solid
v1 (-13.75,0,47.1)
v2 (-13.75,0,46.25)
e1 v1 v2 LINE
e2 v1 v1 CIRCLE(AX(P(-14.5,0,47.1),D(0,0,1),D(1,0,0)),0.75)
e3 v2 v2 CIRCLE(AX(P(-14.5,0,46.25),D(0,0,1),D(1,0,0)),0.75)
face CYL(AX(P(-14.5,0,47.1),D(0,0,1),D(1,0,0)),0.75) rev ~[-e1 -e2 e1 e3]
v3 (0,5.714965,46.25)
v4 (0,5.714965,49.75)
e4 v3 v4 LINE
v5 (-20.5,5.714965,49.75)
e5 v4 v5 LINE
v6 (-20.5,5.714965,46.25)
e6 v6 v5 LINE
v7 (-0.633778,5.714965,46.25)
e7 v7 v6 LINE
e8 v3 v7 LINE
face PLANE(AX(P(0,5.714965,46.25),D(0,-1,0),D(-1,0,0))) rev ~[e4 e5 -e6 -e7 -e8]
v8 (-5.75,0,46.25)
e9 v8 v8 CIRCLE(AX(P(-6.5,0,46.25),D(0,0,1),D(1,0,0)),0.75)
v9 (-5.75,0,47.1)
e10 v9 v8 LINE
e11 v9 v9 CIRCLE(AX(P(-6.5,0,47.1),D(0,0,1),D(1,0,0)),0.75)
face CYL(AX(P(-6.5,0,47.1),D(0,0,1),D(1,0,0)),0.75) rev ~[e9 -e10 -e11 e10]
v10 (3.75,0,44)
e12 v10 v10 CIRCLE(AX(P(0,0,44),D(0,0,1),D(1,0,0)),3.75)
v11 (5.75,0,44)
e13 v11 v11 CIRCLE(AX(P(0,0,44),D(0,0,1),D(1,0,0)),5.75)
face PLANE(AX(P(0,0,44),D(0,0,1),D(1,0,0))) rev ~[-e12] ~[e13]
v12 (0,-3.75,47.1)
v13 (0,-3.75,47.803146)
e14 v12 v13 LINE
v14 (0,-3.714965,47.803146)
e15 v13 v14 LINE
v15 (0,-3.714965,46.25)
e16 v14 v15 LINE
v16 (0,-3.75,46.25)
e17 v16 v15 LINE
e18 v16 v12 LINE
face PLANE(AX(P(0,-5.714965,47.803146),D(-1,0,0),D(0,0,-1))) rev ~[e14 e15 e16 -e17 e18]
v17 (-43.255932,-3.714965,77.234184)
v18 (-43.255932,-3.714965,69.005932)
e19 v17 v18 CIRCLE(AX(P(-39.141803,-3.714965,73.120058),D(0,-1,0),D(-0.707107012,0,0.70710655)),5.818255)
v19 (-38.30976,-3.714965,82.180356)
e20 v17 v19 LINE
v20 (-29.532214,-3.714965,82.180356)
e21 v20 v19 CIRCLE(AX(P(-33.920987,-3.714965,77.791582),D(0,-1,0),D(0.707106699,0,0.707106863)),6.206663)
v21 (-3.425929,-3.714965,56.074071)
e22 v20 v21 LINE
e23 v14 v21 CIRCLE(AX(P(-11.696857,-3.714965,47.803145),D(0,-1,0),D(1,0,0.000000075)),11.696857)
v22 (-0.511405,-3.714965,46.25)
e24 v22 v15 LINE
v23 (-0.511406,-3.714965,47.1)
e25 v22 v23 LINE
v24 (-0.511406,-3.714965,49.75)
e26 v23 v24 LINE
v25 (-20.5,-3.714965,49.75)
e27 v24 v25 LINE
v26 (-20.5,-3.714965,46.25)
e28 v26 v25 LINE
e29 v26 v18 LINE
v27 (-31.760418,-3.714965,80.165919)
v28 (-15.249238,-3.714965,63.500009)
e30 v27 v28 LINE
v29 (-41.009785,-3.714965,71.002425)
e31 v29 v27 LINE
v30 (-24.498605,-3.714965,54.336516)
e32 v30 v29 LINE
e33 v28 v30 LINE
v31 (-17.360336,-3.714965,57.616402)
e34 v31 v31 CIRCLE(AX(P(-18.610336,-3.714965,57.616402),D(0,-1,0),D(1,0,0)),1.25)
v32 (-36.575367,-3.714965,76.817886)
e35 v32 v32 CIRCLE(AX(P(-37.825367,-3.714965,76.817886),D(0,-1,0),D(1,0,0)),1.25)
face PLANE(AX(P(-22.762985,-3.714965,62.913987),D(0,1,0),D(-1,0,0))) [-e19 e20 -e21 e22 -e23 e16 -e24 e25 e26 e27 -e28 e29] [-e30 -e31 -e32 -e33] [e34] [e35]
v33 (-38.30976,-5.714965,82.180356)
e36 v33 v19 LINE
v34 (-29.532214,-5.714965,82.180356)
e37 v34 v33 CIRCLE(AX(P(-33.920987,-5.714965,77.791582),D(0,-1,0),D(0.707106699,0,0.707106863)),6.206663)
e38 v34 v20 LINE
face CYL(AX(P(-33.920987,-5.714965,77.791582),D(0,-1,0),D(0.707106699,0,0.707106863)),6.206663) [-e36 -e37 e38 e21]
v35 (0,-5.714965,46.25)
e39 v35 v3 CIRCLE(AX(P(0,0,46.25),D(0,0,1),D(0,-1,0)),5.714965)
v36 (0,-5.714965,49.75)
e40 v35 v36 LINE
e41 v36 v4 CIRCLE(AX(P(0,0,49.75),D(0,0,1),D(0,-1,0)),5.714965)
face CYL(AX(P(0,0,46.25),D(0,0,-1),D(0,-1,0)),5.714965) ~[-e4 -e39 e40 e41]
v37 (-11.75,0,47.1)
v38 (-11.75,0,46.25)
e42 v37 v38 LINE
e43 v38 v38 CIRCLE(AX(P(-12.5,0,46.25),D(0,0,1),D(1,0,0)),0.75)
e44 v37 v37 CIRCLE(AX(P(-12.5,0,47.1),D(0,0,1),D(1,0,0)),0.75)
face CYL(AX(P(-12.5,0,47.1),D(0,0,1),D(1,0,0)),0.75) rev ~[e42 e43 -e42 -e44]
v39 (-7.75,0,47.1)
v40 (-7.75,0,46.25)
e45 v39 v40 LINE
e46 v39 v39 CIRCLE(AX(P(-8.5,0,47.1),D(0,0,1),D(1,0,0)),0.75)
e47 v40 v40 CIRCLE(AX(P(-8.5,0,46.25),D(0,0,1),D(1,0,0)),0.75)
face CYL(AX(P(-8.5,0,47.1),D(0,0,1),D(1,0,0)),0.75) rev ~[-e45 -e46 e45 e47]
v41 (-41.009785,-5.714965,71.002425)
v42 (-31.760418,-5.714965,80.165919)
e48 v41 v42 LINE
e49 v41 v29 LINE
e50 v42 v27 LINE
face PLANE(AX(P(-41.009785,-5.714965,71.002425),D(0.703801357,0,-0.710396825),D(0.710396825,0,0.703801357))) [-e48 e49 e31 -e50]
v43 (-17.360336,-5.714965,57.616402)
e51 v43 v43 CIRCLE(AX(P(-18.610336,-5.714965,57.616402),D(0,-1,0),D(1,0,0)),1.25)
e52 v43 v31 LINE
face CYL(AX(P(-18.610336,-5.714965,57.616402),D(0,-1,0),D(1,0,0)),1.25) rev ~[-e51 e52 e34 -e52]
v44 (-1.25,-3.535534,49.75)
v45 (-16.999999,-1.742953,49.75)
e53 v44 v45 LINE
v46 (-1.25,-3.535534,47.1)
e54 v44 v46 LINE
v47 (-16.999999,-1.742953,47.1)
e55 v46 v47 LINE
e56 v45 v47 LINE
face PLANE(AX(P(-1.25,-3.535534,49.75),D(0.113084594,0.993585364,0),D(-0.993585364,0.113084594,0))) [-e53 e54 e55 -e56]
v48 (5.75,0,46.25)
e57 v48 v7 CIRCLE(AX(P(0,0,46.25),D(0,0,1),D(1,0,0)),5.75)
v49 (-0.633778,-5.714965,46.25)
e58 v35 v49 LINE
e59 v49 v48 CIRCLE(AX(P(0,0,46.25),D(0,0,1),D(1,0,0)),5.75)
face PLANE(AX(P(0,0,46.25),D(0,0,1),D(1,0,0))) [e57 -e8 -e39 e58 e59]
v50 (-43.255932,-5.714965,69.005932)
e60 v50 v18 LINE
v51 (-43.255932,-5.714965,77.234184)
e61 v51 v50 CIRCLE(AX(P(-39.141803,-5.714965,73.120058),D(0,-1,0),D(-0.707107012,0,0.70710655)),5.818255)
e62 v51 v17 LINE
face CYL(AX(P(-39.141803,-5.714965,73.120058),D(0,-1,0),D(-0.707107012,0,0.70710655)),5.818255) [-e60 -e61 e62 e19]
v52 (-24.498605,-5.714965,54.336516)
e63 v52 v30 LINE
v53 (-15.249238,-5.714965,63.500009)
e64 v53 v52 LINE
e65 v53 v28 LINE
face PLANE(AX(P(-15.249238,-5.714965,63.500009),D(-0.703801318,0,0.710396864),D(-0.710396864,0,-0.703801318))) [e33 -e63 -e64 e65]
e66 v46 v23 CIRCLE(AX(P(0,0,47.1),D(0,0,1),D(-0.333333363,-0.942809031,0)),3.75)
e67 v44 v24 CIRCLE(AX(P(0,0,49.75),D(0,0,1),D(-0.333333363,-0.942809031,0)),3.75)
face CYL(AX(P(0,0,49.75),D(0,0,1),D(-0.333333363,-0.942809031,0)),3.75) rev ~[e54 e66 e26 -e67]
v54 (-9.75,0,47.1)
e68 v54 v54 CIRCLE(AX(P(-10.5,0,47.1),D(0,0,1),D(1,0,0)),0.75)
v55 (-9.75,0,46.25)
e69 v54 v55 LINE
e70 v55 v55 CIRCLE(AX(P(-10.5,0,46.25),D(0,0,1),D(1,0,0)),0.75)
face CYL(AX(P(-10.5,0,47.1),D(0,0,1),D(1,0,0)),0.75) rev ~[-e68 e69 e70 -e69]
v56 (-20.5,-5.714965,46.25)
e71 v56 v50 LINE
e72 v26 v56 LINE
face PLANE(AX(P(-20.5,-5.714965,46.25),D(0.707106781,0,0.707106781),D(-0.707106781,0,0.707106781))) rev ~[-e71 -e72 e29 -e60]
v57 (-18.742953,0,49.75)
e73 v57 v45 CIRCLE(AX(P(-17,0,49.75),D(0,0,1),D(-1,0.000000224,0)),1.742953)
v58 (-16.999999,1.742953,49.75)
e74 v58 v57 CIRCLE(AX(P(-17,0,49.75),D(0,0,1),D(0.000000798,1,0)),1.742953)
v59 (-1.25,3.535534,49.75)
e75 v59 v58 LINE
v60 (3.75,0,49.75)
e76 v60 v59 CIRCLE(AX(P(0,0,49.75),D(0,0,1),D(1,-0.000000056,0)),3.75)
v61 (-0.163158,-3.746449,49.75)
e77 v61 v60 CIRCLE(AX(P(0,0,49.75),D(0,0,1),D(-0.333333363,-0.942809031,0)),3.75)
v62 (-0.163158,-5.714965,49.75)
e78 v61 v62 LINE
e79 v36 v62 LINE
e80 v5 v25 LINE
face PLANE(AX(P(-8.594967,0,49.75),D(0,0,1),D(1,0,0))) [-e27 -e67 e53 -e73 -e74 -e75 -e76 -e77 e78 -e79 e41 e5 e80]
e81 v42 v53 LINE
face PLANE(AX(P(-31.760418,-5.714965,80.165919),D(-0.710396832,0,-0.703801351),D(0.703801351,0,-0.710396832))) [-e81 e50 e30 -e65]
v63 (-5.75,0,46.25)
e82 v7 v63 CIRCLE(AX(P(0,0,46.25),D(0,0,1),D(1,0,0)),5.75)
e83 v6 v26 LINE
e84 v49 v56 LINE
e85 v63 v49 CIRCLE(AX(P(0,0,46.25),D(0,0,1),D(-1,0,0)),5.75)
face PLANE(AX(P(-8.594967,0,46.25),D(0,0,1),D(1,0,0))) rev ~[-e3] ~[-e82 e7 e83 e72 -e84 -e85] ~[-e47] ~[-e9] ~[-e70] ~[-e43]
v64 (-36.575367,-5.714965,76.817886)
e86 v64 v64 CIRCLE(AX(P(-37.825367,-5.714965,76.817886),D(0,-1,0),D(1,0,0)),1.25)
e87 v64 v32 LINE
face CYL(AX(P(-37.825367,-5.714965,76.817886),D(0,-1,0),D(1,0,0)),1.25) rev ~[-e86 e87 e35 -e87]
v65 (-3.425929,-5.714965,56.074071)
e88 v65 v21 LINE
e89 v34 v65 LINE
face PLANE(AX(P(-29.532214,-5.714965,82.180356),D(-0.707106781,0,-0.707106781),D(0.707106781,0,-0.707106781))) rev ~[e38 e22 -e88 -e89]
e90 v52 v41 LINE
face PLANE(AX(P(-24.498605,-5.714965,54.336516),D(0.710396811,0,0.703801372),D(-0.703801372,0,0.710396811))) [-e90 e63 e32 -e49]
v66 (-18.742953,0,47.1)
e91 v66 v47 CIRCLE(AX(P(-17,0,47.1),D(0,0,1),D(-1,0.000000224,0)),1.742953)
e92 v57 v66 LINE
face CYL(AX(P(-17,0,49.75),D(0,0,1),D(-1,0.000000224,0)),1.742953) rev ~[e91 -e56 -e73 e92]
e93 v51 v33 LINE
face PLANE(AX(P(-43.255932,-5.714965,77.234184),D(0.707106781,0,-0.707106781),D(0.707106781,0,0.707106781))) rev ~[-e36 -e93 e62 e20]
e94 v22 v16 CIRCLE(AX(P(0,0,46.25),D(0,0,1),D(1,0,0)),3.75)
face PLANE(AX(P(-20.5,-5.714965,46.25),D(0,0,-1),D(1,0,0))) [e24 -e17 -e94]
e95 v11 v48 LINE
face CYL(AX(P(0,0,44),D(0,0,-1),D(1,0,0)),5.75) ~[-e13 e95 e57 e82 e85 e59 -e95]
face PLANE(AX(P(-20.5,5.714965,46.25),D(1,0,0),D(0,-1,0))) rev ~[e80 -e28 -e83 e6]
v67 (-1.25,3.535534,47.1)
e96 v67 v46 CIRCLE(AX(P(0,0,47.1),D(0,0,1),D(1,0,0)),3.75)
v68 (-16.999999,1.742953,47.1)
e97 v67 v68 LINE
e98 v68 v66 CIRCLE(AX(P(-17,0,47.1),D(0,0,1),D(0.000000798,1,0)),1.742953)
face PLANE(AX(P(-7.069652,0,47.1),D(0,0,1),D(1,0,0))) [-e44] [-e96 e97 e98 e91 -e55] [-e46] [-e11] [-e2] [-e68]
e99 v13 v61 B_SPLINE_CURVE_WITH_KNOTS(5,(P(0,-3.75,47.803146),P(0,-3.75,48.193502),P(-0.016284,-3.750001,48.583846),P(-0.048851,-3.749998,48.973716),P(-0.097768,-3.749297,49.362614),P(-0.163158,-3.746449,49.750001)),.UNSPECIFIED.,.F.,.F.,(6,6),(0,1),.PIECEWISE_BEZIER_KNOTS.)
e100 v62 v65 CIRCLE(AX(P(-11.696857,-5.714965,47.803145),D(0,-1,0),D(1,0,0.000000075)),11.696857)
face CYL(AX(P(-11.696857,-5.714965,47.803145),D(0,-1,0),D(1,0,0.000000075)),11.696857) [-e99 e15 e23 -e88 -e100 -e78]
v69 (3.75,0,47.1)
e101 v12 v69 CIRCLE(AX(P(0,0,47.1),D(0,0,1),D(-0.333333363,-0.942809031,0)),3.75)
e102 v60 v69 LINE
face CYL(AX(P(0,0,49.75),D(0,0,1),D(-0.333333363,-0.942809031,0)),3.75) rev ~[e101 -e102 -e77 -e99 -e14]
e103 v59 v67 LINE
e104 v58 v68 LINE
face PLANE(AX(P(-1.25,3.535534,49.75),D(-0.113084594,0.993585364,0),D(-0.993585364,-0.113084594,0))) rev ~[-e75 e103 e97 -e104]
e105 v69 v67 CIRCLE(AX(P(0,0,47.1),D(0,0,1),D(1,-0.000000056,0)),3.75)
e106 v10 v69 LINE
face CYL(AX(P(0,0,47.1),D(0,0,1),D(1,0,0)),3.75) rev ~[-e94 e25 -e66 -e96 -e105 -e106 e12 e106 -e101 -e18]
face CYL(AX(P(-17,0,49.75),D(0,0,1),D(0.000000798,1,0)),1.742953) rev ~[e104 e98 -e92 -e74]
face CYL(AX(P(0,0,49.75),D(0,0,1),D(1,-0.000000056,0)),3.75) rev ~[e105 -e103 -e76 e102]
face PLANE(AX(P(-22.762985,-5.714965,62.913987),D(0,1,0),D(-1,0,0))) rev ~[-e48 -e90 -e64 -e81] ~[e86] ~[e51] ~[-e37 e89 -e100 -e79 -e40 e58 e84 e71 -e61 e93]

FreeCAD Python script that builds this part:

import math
import FreeCAD as App
import Part
import Sketcher

V = App.Vector
Q = App.Units.Quantity


def add_polygon(sketch, points):
    """Adds a closed chain of lines whose ends are joined by coincident constraints."""
    first, n = sketch.GeometryCount, len(points)
    for a, b in zip(points, points[1:] + points[:1]):
        sketch.addGeometry(Part.LineSegment(App.Vector(*a, 0), App.Vector(*b, 0)), False)
    for i in range(n):
        sketch.addConstraint(Sketcher.Constraint("Coincident", first + i, 2, first + (i + 1) % n, 1))

doc = App.newDocument("Part")
params = doc.addObject("Spreadsheet::Sheet", "Params")
for row, (alias, value) in enumerate([
    ("sketch1_diameter", "11.5 mm"),
    ("sketch1_diameter2", "7.5 mm"),
    ("pad1_length", "2.25 mm"),
    ("sketch2_width", "20.5 mm"),
    ("pad2_length", "3.5 mm"),
    ("sketch3_radius", "3.75 mm"),
    ("pocket1_length", "2.65 mm"),
    ("sketch4_diameter", "7.5 mm"),
    ("sketch4_diameter2", "1.5 mm"),
    ("pocket2_length", "5 mm"),
    ("sketch5_diameter", "2.5 mm"),
    ("sketch5_width", "20.5 mm"),
    ("sketch5_length", "13.02 mm"),
    ("sketch5_length2", "23.46 mm"),
    ("pad3_length", "2 mm"),
], start=1):
    params.set(f"A{row}", alias)
    params.set(f"B{row}", "=" + value)
    params.setAlias(f"B{row}", alias)

body = doc.addObject("PartDesign::Body", "Body")

sketch1 = doc.addObject("Sketcher::SketchObject", "Sketch")
body.addObject(sketch1)
sketch1.AttachmentSupport = (doc.XY_Plane, [""])
sketch1.MapMode = "FlatFace"
sketch1.addGeometry(Part.Circle(V(0, 0, 0), V(0, 0, 1), 5.8), False)
sketch1.addGeometry(Part.Circle(V(0, 0, 0), V(0, 0, 1), 3.8), False)
sketch1.addConstraint(Sketcher.Constraint("Coincident", 0, 3, -1, 1))
sketch1.addConstraint(Sketcher.Constraint("Coincident", 1, 3, -1, 1))
sketch1.addConstraint(Sketcher.Constraint("Diameter", 0, Q("11.5 mm")))
sketch1.addConstraint(Sketcher.Constraint("Diameter", 1, Q("7.5 mm")))
sketch1.setExpression("Constraints[2]", "Params.sketch1_diameter")
sketch1.setExpression("Constraints[3]", "Params.sketch1_diameter2")
pad1 = doc.addObject("PartDesign::Pad", "Pad")
body.addObject(pad1)
pad1.Profile = sketch1
pad1.setExpression("Length", "Params.pad1_length")

sketch2 = doc.addObject("Sketcher::SketchObject", "Sketch001")
body.addObject(sketch2)
sketch2.AttachmentSupport = (doc.XY_Plane, [""])
sketch2.MapMode = "FlatFace"
sketch2.AttachmentOffset = App.Placement(V(0, 0, 2.25), App.Rotation())
sketch2.addGeometry(Part.LineSegment(V(0, 6, 0), V(-20, 6, 0)), False)
sketch2.addGeometry(Part.LineSegment(V(-20, 6, 0), V(-20, -6, 0)), False)
sketch2.addGeometry(Part.LineSegment(V(-20, -6, 0), V(0, -6, 0)), False)
sketch2.addGeometry(Part.ArcOfCircle(Part.Circle(V(0, 0, 0), V(0, 0, 1), 6), math.radians(-90), math.radians(90)), False)
sketch2.addConstraint(Sketcher.Constraint("Coincident", 0, 2, 1, 1))
sketch2.addConstraint(Sketcher.Constraint("Coincident", 1, 2, 2, 1))
sketch2.addConstraint(Sketcher.Constraint("Tangent", 2, 2, 3, 1))
sketch2.addConstraint(Sketcher.Constraint("Tangent", 3, 2, 0, 1))
sketch2.addConstraint(Sketcher.Constraint("Horizontal", 0))
sketch2.addConstraint(Sketcher.Constraint("Vertical", 1))
sketch2.addConstraint(Sketcher.Constraint("Horizontal", 2))
sketch2.addConstraint(Sketcher.Constraint("Coincident", 3, 3, -1, 1))
sketch2.addConstraint(Sketcher.Constraint("DistanceX", 0, 2, 0, 1, Q("20.5 mm")))
sketch2.addConstraint(Sketcher.Constraint("Radius", 3, Q("5.714965 mm")))
sketch2.setExpression("Constraints[8]", "Params.sketch2_width")
pad2 = doc.addObject("PartDesign::Pad", "Pad001")
body.addObject(pad2)
pad2.Profile = sketch2
pad2.setExpression("Length", "Params.pad2_length")

sketch3 = doc.addObject("Sketcher::SketchObject", "Sketch002")
body.addObject(sketch3)
sketch3.AttachmentSupport = (doc.XY_Plane, [""])
sketch3.MapMode = "FlatFace"
sketch3.AttachmentOffset = App.Placement(V(0, 0, 5.75), App.Rotation())
sketch3.addGeometry(Part.LineSegment(V(-1.2, 3.5, 0), V(-17, 1.7, 0)), False)
sketch3.addGeometry(Part.ArcOfCircle(Part.Circle(V(-17, 0, 0), V(0, 0, 1), 1.7), math.radians(90), math.radians(180)), False)
sketch3.addGeometry(Part.ArcOfCircle(Part.Circle(V(-17, 0, 0), V(0, 0, 1), 1.7), math.radians(180), math.radians(270)), False)
sketch3.addGeometry(Part.LineSegment(V(-17, -1.7, 0), V(-1.2, -3.5, 0)), False)
sketch3.addGeometry(Part.ArcOfCircle(Part.Circle(V(0, 0, 0), V(0, 0, 1), 3.7), math.radians(-109), math.radians(0)), False)
sketch3.addGeometry(Part.ArcOfCircle(Part.Circle(V(0, 0, 0), V(0, 0, 1), 3.7), math.radians(0), math.radians(109)), False)
sketch3.addConstraint(Sketcher.Constraint("Coincident", 0, 2, 1, 1))
sketch3.addConstraint(Sketcher.Constraint("Tangent", 1, 2, 2, 1))
sketch3.addConstraint(Sketcher.Constraint("Coincident", 2, 2, 3, 1))
sketch3.addConstraint(Sketcher.Constraint("Coincident", 3, 2, 4, 1))
sketch3.addConstraint(Sketcher.Constraint("Tangent", 4, 2, 5, 1))
sketch3.addConstraint(Sketcher.Constraint("Coincident", 5, 2, 0, 1))
sketch3.addConstraint(Sketcher.Constraint("Coincident", 4, 3, -1, 1))
sketch3.addConstraint(Sketcher.Constraint("Equal", 1, 2))
sketch3.addConstraint(Sketcher.Constraint("Equal", 4, 5))
sketch3.addConstraint(Sketcher.Constraint("Symmetric", 0, 2, 2, 2, -1))
sketch3.addConstraint(Sketcher.Constraint("PointOnObject", 1, 2, -1))
sketch3.addConstraint(Sketcher.Constraint("PointOnObject", 4, 2, -1))
sketch3.addConstraint(Sketcher.Constraint("Vertical", 2, 3, 0, 2))
sketch3.addConstraint(Sketcher.Constraint("Vertical", 3, 2, 5, 2))
sketch3.addConstraint(Sketcher.Constraint("Radius", 4, Q("3.75 mm")))
sketch3.addConstraint(Sketcher.Constraint("DistanceX", 1, 3, -1, 1, Q("17 mm")))
sketch3.addConstraint(Sketcher.Constraint("DistanceX", 3, 2, 4, 2, Q("5 mm")))
sketch3.addConstraint(Sketcher.Constraint("Radius", 1, Q("1.742953 mm")))
sketch3.setExpression("Constraints[14]", "Params.sketch3_radius")
pocket1 = doc.addObject("PartDesign::Pocket", "Pocket")
body.addObject(pocket1)
pocket1.Profile = sketch3
pocket1.setExpression("Length", "Params.pocket1_length")

sketch4 = doc.addObject("Sketcher::SketchObject", "Sketch003")
body.addObject(sketch4)
sketch4.AttachmentSupport = (doc.XY_Plane, [""])
sketch4.MapMode = "FlatFace"
sketch4.AttachmentOffset = App.Placement(V(0, 0, 3.1), App.Rotation())
sketch4.addGeometry(Part.Circle(V(0, 0, 0), V(0, 0, 1), 3.8), False)
sketch4.addGeometry(Part.Circle(V(-14.5, 0, 0), V(0, 0, 1), 0.8), False)
sketch4.addGeometry(Part.Circle(V(-12.5, 0, 0), V(0, 0, 1), 0.8), False)
sketch4.addGeometry(Part.Circle(V(-10.5, 0, 0), V(0, 0, 1), 0.8), False)
sketch4.addGeometry(Part.Circle(V(-8.5, 0, 0), V(0, 0, 1), 0.8), False)
sketch4.addGeometry(Part.Circle(V(-6.5, 0, 0), V(0, 0, 1), 0.8), False)
sketch4.addConstraint(Sketcher.Constraint("Coincident", 0, 3, -1, 1))
sketch4.addConstraint(Sketcher.Constraint("Equal", 1, 2))
sketch4.addConstraint(Sketcher.Constraint("Equal", 2, 3))
sketch4.addConstraint(Sketcher.Constraint("Equal", 3, 4))
sketch4.addConstraint(Sketcher.Constraint("Equal", 4, 5))
sketch4.addConstraint(Sketcher.Constraint("PointOnObject", 1, 3, -1))
sketch4.addConstraint(Sketcher.Constraint("PointOnObject", 2, 3, -1))
sketch4.addConstraint(Sketcher.Constraint("PointOnObject", 3, 3, -1))
sketch4.addConstraint(Sketcher.Constraint("PointOnObject", 4, 3, -1))
sketch4.addConstraint(Sketcher.Constraint("PointOnObject", 5, 3, -1))
sketch4.addConstraint(Sketcher.Constraint("Diameter", 0, Q("7.5 mm")))
sketch4.addConstraint(Sketcher.Constraint("Diameter", 1, Q("1.5 mm")))
sketch4.addConstraint(Sketcher.Constraint("DistanceX", 1, 3, 2, 3, Q("2 mm")))
sketch4.addConstraint(Sketcher.Constraint("DistanceX", 2, 3, 3, 3, Q("2 mm")))
sketch4.addConstraint(Sketcher.Constraint("DistanceX", 3, 3, 4, 3, Q("2 mm")))
sketch4.addConstraint(Sketcher.Constraint("DistanceX", 4, 3, 5, 3, Q("2 mm")))
sketch4.addConstraint(Sketcher.Constraint("DistanceX", 1, 3, -1, 1, Q("14.5 mm")))
sketch4.setExpression("Constraints[10]", "Params.sketch4_diameter")
sketch4.setExpression("Constraints[11]", "Params.sketch4_diameter2")
pocket2 = doc.addObject("PartDesign::Pocket", "Pocket001")
body.addObject(pocket2)
pocket2.Profile = sketch4
pocket2.setExpression("Length", "Params.pocket2_length")

sketch5 = doc.addObject("Sketcher::SketchObject", "Sketch004")
body.addObject(sketch5)
sketch5.AttachmentSupport = (doc.XZ_Plane, [""])
sketch5.MapMode = "FlatFace"
sketch5.AttachmentOffset = App.Placement(V(0, 0, 5.714965), App.Rotation())
sketch5.addGeometry(Part.LineSegment(V(-43.3, 25, 0), V(-20.5, 2.2, 0)), False)
sketch5.addGeometry(Part.LineSegment(V(-20.5, 2.2, 0), V(0, 2.2, 0)), False)
sketch5.addGeometry(Part.LineSegment(V(0, 2.2, 0), V(0, 3.8, 0)), False)
sketch5.addGeometry(Part.ArcOfCircle(Part.Circle(V(-11.7, 3.8, 0), V(0, 0, 1), 11.7), math.radians(0), math.radians(45)), False)
sketch5.addGeometry(Part.LineSegment(V(-3.4, 12.1, 0), V(-29.5, 38.2, 0)), False)
sketch5.addGeometry(Part.ArcOfCircle(Part.Circle(V(-33.9, 33.8, 0), V(0, 0, 1), 6.2), math.radians(45), math.radians(135)), False)
sketch5.addGeometry(Part.LineSegment(V(-38.3, 38.2, 0), V(-43.3, 33.2, 0)), False)
sketch5.addGeometry(Part.ArcOfCircle(Part.Circle(V(-39.1, 29.1, 0), V(0, 0, 1), 5.8), math.radians(135), math.radians(225)), False)
sketch5.addGeometry(Part.Circle(V(-18.6, 13.6, 0), V(0, 0, 1), 1.2), False)
add_polygon(sketch5, [(-41, 27), (-31.8, 36.2), (-15.2, 19.5), (-24.5, 10.3)])
sketch5.addGeometry(Part.Circle(V(-37.8, 32.8, 0), V(0, 0, 1), 1.2), False)
sketch5.addConstraint(Sketcher.Constraint("Coincident", 0, 2, 1, 1))
sketch5.addConstraint(Sketcher.Constraint("Coincident", 1, 2, 2, 1))
sketch5.addConstraint(Sketcher.Constraint("Tangent", 2, 2, 3, 1))
sketch5.addConstraint(Sketcher.Constraint("Tangent", 3, 2, 4, 1))
sketch5.addConstraint(Sketcher.Constraint("Tangent", 4, 2, 5, 1))
sketch5.addConstraint(Sketcher.Constraint("Tangent", 5, 2, 6, 1))
sketch5.addConstraint(Sketcher.Constraint("Tangent", 6, 2, 7, 1))
sketch5.addConstraint(Sketcher.Constraint("Tangent", 7, 2, 0, 1))
sketch5.addConstraint(Sketcher.Constraint("Horizontal", 1))
sketch5.addConstraint(Sketcher.Constraint("Vertical", 2))
sketch5.addConstraint(Sketcher.Constraint("Equal", 8, 13))
sketch5.addConstraint(Sketcher.Constraint("PointOnObject", 1, 2, -2))
sketch5.addConstraint(Sketcher.Constraint("Parallel", 0, 4))
sketch5.addConstraint(Sketcher.Constraint("Perpendicular", 4, 6))
sketch5.addConstraint(Sketcher.Constraint("Perpendicular", 9, 10))
sketch5.addConstraint(Sketcher.Constraint("Perpendicular", 10, 11))
sketch5.addConstraint(Sketcher.Constraint("Perpendicular", 11, 12))
sketch5.addConstraint(Sketcher.Constraint("Horizontal", 4, 2, 5, 2))
sketch5.addConstraint(Sketcher.Constraint("Diameter", 8, Q("2.5 mm")))
sketch5.addConstraint(Sketcher.Constraint("DistanceX", 1, 1, 1, 2, Q("20.5 mm")))
sketch5.addConstraint(Sketcher.Constraint("Distance", 9, Q("13.02 mm")))
sketch5.addConstraint(Sketcher.Constraint("Distance", 10, Q("23.46 mm")))
sketch5.addConstraint(Sketcher.Constraint("DistanceY", -1, 1, 0, 2, Q("2.25 mm")))
sketch5.addConstraint(Sketcher.Constraint("Radius", 3, Q("11.696857 mm")))
sketch5.addConstraint(Sketcher.Constraint("Radius", 5, Q("6.206663 mm")))
sketch5.addConstraint(Sketcher.Constraint("Radius", 7, Q("5.818255 mm")))
sketch5.addConstraint(Sketcher.Constraint("DistanceY", 7, 3, 4, 2, Q("9.060298 mm")))
sketch5.addConstraint(Sketcher.Constraint("DistanceX", 8, 3, 10, 2, Q("3.361098 mm")))
sketch5.addConstraint(Sketcher.Constraint("DistanceX", 12, 2, 5, 3, Q("7.088798 mm")))
sketch5.addConstraint(Sketcher.Constraint("DistanceY", -1, 1, 5, 3, Q("33.791582 mm")))
sketch5.addConstraint(Sketcher.Constraint("DistanceX", 9, 2, -1, 1, Q("31.760418 mm")))
sketch5.addConstraint(Sketcher.Constraint("DistanceY", -1, 1, 9, 2, Q("36.165919 mm")))
sketch5.addConstraint(Sketcher.Constraint("DistanceY", 8, 3, 5, 3, Q("20.17518 mm")))
sketch5.addConstraint(Sketcher.Constraint("DistanceY", 7, 3, 13, 3, Q("3.697828 mm")))
sketch5.addConstraint(Sketcher.Constraint("DistanceX", 13, 3, 5, 3, Q("3.90438 mm")))
sketch5.setExpression("Constraints[22]", "Params.sketch5_diameter")
sketch5.setExpression("Constraints[23]", "Params.sketch5_width")
sketch5.setExpression("Constraints[24]", "Params.sketch5_length")
sketch5.setExpression("Constraints[25]", "Params.sketch5_length2")
pad3 = doc.addObject("PartDesign::Pad", "Pad002")
body.addObject(pad3)
pad3.Profile = sketch5
pad3.setExpression("Length", "Params.pad3_length")
pad3.Reversed = True
body2 = doc.addObject("PartDesign::Body", "Body001")
doc.recompute()

body.Placement = App.Placement(V(0, 0, 44), App.Rotation(V(0, 0, 1), 0))
boolean = doc.addObject("PartDesign::Boolean", "Boolean")
body2.addObject(boolean)
boolean.Type = "Fuse"
boolean.addObjects([body])

doc.recompute()
